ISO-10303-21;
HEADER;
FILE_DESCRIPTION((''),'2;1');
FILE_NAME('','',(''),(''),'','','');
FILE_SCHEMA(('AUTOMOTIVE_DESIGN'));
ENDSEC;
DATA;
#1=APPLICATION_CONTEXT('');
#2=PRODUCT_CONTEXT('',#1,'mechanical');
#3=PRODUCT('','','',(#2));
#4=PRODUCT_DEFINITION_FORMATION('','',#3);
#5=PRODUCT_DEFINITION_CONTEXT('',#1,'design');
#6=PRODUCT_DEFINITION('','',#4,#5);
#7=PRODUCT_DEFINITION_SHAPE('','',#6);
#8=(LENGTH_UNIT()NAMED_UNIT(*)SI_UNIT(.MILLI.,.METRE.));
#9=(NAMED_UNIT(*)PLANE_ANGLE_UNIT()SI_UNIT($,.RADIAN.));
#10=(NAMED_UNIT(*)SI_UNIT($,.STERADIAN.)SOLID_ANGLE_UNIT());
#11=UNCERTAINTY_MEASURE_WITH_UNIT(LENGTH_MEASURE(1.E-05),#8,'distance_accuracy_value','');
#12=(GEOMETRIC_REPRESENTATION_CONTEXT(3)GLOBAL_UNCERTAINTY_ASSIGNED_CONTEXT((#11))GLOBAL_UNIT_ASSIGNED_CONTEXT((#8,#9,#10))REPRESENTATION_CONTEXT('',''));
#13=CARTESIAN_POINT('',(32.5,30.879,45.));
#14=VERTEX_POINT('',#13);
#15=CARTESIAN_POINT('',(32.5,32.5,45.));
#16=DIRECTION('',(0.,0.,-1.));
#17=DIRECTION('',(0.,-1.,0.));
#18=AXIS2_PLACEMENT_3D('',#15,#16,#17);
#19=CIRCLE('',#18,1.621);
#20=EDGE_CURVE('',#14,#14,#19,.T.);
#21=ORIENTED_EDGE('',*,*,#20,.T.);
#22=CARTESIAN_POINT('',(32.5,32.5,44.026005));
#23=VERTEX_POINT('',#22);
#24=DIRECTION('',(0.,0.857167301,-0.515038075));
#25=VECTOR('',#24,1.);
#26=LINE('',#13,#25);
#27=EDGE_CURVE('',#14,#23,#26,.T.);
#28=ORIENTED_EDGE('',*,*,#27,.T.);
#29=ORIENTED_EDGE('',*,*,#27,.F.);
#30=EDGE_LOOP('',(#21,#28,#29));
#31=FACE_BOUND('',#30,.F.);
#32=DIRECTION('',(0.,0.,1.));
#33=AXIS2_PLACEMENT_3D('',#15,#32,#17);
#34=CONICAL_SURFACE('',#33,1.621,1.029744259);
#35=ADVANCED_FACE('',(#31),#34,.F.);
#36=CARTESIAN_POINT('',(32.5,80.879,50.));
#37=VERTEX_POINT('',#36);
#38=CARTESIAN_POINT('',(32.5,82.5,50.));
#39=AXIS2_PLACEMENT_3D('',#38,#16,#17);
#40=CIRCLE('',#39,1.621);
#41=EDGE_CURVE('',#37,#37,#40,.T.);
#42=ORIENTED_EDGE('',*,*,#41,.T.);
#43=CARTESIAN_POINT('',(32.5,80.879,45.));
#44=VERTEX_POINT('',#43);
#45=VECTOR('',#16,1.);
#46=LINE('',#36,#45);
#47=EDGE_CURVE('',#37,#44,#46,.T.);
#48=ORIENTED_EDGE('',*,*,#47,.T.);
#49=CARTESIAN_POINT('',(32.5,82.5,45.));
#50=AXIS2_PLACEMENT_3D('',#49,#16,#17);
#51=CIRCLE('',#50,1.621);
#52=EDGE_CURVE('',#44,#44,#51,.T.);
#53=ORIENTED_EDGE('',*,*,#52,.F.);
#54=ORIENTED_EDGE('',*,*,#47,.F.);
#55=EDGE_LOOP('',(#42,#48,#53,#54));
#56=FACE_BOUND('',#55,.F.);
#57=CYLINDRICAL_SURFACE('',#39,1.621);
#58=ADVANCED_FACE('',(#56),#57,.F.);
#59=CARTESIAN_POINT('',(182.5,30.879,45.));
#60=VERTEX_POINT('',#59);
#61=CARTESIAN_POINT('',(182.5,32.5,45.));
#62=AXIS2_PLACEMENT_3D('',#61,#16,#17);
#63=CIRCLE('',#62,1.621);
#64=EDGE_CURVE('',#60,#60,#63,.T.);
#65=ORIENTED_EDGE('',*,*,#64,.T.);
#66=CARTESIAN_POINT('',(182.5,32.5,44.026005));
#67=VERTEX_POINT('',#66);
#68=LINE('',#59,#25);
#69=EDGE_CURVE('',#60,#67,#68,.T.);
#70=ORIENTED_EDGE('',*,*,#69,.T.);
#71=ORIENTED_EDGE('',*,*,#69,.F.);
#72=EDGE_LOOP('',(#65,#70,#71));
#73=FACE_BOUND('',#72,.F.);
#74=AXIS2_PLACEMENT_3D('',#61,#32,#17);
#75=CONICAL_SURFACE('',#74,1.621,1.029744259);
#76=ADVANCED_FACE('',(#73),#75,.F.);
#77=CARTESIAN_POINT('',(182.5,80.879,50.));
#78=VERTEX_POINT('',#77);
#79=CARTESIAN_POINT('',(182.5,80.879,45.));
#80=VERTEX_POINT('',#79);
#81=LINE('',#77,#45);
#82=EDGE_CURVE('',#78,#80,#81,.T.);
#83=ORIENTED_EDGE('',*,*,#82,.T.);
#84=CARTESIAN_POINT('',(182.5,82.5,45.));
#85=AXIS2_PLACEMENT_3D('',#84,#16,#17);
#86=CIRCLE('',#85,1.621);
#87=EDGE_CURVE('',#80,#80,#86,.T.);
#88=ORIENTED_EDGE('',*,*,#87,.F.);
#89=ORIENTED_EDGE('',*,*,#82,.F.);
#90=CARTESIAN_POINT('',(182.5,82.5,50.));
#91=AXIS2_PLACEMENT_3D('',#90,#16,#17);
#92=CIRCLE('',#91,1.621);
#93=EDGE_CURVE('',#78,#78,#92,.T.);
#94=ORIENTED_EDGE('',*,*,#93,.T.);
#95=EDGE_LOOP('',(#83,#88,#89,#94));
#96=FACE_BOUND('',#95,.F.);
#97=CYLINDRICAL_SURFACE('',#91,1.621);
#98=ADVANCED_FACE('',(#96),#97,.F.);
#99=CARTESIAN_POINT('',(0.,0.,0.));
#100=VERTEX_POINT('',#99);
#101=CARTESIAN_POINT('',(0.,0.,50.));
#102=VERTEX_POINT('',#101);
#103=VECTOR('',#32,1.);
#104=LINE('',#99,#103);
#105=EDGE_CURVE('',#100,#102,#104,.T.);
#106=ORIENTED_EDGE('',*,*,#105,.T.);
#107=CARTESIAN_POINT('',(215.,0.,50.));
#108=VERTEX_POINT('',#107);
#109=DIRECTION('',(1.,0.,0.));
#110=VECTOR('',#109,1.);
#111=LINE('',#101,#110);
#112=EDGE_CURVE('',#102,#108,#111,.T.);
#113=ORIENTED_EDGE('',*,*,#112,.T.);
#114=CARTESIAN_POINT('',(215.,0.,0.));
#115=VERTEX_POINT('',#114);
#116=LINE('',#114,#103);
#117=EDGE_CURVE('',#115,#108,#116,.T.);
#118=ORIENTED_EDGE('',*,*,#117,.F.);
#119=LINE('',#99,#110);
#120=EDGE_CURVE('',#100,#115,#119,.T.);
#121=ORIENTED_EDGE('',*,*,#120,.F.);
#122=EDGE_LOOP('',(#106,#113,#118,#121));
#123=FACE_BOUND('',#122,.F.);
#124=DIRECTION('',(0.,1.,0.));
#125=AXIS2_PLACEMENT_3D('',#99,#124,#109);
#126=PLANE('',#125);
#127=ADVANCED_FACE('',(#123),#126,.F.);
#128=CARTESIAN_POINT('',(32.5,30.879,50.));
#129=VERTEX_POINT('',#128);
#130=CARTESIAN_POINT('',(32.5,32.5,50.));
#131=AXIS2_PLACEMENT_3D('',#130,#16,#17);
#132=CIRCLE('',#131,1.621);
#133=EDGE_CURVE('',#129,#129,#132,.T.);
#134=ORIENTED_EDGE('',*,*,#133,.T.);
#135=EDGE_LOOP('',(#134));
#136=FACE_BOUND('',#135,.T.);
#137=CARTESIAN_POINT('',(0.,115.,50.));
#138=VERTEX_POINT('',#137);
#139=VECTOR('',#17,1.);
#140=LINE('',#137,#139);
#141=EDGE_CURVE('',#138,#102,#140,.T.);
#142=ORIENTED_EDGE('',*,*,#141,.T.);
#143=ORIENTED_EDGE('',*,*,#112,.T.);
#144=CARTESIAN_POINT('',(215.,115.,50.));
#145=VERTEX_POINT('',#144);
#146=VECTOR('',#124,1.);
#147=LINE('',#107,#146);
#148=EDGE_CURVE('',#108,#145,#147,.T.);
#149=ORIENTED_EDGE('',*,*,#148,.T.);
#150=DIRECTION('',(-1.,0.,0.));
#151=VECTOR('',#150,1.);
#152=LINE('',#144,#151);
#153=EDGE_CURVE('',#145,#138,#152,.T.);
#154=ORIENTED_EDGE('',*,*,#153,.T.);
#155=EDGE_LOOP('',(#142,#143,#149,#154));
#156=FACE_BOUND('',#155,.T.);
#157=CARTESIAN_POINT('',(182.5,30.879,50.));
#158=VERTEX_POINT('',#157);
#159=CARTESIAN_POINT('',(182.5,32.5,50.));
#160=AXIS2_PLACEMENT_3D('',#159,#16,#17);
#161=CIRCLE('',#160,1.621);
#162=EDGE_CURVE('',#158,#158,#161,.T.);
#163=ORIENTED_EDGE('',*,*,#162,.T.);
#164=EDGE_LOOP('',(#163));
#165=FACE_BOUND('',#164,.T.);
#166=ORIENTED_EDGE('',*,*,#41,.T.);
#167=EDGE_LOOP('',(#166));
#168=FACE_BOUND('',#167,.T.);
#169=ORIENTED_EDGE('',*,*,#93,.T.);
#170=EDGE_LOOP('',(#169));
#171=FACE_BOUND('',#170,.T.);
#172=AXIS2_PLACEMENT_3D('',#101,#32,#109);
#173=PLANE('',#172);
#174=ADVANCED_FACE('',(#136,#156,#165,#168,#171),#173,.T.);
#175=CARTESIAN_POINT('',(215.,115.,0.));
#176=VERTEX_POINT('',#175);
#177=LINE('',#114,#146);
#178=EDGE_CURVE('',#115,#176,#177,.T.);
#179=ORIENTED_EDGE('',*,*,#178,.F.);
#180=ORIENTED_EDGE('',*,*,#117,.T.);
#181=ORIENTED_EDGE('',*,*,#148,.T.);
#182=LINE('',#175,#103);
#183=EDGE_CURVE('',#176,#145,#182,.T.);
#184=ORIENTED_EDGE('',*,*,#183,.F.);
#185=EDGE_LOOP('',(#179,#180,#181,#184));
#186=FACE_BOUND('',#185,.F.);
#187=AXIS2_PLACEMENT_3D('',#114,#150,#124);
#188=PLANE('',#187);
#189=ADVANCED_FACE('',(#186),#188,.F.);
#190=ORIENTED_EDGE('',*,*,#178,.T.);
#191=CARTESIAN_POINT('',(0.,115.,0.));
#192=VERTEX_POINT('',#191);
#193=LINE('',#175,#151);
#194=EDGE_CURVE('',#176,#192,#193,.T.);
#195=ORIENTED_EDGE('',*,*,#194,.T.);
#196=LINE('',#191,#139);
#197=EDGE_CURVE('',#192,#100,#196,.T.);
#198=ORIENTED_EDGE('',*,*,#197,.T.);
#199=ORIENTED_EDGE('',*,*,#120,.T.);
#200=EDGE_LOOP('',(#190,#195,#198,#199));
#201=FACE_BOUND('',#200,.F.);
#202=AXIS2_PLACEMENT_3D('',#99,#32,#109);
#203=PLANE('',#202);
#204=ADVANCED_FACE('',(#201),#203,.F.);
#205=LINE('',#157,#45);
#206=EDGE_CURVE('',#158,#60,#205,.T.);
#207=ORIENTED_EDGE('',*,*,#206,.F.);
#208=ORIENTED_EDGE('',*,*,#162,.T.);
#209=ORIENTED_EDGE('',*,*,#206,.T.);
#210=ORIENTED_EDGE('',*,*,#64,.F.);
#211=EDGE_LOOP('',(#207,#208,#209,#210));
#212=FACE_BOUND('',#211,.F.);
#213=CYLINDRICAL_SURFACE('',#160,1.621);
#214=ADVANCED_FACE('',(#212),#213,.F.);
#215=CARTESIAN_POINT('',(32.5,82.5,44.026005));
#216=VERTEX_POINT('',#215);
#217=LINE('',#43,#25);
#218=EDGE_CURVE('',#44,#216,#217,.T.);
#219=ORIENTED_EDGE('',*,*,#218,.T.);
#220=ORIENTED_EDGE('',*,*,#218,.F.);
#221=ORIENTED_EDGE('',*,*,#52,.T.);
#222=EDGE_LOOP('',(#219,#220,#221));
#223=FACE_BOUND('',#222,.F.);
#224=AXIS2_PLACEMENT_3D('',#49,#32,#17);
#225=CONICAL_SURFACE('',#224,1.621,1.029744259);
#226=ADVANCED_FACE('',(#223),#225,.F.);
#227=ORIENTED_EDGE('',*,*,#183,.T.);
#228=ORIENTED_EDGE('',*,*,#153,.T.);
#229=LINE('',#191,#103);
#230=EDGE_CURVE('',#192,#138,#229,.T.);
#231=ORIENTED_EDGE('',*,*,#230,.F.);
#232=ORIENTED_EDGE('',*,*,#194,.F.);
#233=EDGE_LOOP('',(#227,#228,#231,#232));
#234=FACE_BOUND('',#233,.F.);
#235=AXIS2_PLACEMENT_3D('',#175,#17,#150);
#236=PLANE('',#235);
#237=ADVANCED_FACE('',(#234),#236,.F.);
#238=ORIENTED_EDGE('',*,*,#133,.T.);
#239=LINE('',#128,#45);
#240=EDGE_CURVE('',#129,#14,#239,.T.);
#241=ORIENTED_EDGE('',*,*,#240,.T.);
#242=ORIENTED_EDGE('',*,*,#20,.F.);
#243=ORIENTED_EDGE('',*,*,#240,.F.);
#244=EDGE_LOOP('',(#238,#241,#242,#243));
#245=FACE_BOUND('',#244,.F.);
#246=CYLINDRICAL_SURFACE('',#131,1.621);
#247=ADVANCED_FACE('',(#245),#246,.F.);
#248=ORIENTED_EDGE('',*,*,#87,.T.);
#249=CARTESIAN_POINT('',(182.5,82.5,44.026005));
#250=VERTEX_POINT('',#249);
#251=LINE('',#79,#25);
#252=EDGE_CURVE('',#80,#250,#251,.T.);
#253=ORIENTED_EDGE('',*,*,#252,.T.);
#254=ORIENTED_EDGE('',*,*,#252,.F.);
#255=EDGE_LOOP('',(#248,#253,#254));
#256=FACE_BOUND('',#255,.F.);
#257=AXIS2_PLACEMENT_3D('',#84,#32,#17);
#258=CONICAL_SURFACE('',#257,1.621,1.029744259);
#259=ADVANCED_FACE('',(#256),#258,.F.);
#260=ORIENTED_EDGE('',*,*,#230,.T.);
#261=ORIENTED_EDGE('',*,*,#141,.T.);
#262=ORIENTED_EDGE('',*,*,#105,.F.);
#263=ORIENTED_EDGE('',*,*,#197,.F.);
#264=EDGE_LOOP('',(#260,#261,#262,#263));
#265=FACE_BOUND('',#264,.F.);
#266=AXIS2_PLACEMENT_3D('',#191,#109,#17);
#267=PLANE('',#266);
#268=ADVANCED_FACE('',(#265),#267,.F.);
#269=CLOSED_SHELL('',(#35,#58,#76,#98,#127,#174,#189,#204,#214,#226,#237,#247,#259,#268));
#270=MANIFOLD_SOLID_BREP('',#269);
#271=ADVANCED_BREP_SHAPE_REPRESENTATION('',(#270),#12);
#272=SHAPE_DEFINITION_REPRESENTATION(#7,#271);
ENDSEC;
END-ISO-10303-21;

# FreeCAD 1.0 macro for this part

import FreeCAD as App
import Part
import Sketcher
from FreeCAD import Vector

doc = App.newDocument("Part")
body = doc.addObject("PartDesign::Body", "Body")

# Sketch on XY plane
sketch1 = body.newObject("Sketcher::SketchObject", "Sketch")
sketch1.AttachmentSupport = (doc.getObject("XY_Plane"), [""])
sketch1.MapMode = "FlatFace"
sketch1.addGeometry(Part.LineSegment(Vector(0, 115, 0), Vector(0, 0, 0)), False)
sketch1.addGeometry(Part.LineSegment(Vector(0, 0, 0), Vector(215, 0, 0)), False)
sketch1.addGeometry(Part.LineSegment(Vector(215, 0, 0), Vector(215, 115, 0)), False)
sketch1.addGeometry(Part.LineSegment(Vector(215, 115, 0), Vector(0, 115, 0)), False)
sketch1.addConstraint(Sketcher.Constraint("Coincident", 0, 2, 1, 1))
sketch1.addConstraint(Sketcher.Constraint("Coincident", 1, 2, 2, 1))
sketch1.addConstraint(Sketcher.Constraint("Coincident", 2, 2, 3, 1))
sketch1.addConstraint(Sketcher.Constraint("Coincident", 3, 2, 0, 1))
sketch1.addConstraint(Sketcher.Constraint("Vertical", 0))
sketch1.addConstraint(Sketcher.Constraint("Horizontal", 1))
sketch1.addConstraint(Sketcher.Constraint("Vertical", 2))
sketch1.addConstraint(Sketcher.Constraint("Horizontal", 3))
sketch1.addConstraint(Sketcher.Constraint("Coincident", 0, 2, -1, 1))
sketch1.addConstraint(Sketcher.Constraint("DistanceX", 1, 1, 1, 2, 215.0))
sketch1.addConstraint(Sketcher.Constraint("DistanceY", 0, 2, 0, 1, 115.0))
pad1 = body.newObject("PartDesign::Pad", "Pad")
pad1.Profile = sketch1
pad1.Length = 50

# Sketch on XY plane
sketch2 = body.newObject("Sketcher::SketchObject", "Sketch001")
sketch2.AttachmentSupport = (doc.getObject("XY_Plane"), [""])
sketch2.MapMode = "FlatFace"
sketch2.AttachmentOffset = App.Placement(Vector(0, 0, 50), App.Rotation())
sketch2.addGeometry(Part.Circle(Vector(32.5, 82.5, 0), Vector(0, 0, 1), 1.6), False)
sketch2.addGeometry(Part.Circle(Vector(32.5, 32.5, 0), Vector(0, 0, 1), 1.6), False)
sketch2.addGeometry(Part.Circle(Vector(182.5, 32.5, 0), Vector(0, 0, 1), 1.6), False)
sketch2.addGeometry(Part.Circle(Vector(182.5, 82.5, 0), Vector(0, 0, 1), 1.6), False)
sketch2.addConstraint(Sketcher.Constraint("Equal", 0, 1))
sketch2.addConstraint(Sketcher.Constraint("Equal", 1, 2))
sketch2.addConstraint(Sketcher.Constraint("Equal", 2, 3))
sketch2.addConstraint(Sketcher.Constraint("Horizontal", 1, 3, 2, 3))
sketch2.addConstraint(Sketcher.Constraint("Horizontal", 0, 3, 3, 3))
sketch2.addConstraint(Sketcher.Constraint("Vertical", 0, 3, 1, 3))
sketch2.addConstraint(Sketcher.Constraint("Vertical", 2, 3, 3, 3))
sketch2.addConstraint(Sketcher.Constraint("Diameter", 0, 3.242))
sketch2.addConstraint(Sketcher.Constraint("DistanceY", 1, 3, 0, 3, 50.0))
sketch2.addConstraint(Sketcher.Constraint("DistanceX", 1, 3, 2, 3, 150.0))
sketch2.addConstraint(Sketcher.Constraint("DistanceX", -1, 1, 0, 3, 32.5))
sketch2.addConstraint(Sketcher.Constraint("DistanceY", -1, 1, 0, 3, 82.5))
doc.recompute()
hole = body.newObject("PartDesign::Hole", "Hole")
hole.Profile = sketch2
hole.ThreadType = "None"
hole.Diameter = 3.242
hole.DepthType = "Dimension"
hole.Depth = 5
hole.DrillPoint = "Angled"
hole.DrillPointAngle = 118

doc.recompute()
